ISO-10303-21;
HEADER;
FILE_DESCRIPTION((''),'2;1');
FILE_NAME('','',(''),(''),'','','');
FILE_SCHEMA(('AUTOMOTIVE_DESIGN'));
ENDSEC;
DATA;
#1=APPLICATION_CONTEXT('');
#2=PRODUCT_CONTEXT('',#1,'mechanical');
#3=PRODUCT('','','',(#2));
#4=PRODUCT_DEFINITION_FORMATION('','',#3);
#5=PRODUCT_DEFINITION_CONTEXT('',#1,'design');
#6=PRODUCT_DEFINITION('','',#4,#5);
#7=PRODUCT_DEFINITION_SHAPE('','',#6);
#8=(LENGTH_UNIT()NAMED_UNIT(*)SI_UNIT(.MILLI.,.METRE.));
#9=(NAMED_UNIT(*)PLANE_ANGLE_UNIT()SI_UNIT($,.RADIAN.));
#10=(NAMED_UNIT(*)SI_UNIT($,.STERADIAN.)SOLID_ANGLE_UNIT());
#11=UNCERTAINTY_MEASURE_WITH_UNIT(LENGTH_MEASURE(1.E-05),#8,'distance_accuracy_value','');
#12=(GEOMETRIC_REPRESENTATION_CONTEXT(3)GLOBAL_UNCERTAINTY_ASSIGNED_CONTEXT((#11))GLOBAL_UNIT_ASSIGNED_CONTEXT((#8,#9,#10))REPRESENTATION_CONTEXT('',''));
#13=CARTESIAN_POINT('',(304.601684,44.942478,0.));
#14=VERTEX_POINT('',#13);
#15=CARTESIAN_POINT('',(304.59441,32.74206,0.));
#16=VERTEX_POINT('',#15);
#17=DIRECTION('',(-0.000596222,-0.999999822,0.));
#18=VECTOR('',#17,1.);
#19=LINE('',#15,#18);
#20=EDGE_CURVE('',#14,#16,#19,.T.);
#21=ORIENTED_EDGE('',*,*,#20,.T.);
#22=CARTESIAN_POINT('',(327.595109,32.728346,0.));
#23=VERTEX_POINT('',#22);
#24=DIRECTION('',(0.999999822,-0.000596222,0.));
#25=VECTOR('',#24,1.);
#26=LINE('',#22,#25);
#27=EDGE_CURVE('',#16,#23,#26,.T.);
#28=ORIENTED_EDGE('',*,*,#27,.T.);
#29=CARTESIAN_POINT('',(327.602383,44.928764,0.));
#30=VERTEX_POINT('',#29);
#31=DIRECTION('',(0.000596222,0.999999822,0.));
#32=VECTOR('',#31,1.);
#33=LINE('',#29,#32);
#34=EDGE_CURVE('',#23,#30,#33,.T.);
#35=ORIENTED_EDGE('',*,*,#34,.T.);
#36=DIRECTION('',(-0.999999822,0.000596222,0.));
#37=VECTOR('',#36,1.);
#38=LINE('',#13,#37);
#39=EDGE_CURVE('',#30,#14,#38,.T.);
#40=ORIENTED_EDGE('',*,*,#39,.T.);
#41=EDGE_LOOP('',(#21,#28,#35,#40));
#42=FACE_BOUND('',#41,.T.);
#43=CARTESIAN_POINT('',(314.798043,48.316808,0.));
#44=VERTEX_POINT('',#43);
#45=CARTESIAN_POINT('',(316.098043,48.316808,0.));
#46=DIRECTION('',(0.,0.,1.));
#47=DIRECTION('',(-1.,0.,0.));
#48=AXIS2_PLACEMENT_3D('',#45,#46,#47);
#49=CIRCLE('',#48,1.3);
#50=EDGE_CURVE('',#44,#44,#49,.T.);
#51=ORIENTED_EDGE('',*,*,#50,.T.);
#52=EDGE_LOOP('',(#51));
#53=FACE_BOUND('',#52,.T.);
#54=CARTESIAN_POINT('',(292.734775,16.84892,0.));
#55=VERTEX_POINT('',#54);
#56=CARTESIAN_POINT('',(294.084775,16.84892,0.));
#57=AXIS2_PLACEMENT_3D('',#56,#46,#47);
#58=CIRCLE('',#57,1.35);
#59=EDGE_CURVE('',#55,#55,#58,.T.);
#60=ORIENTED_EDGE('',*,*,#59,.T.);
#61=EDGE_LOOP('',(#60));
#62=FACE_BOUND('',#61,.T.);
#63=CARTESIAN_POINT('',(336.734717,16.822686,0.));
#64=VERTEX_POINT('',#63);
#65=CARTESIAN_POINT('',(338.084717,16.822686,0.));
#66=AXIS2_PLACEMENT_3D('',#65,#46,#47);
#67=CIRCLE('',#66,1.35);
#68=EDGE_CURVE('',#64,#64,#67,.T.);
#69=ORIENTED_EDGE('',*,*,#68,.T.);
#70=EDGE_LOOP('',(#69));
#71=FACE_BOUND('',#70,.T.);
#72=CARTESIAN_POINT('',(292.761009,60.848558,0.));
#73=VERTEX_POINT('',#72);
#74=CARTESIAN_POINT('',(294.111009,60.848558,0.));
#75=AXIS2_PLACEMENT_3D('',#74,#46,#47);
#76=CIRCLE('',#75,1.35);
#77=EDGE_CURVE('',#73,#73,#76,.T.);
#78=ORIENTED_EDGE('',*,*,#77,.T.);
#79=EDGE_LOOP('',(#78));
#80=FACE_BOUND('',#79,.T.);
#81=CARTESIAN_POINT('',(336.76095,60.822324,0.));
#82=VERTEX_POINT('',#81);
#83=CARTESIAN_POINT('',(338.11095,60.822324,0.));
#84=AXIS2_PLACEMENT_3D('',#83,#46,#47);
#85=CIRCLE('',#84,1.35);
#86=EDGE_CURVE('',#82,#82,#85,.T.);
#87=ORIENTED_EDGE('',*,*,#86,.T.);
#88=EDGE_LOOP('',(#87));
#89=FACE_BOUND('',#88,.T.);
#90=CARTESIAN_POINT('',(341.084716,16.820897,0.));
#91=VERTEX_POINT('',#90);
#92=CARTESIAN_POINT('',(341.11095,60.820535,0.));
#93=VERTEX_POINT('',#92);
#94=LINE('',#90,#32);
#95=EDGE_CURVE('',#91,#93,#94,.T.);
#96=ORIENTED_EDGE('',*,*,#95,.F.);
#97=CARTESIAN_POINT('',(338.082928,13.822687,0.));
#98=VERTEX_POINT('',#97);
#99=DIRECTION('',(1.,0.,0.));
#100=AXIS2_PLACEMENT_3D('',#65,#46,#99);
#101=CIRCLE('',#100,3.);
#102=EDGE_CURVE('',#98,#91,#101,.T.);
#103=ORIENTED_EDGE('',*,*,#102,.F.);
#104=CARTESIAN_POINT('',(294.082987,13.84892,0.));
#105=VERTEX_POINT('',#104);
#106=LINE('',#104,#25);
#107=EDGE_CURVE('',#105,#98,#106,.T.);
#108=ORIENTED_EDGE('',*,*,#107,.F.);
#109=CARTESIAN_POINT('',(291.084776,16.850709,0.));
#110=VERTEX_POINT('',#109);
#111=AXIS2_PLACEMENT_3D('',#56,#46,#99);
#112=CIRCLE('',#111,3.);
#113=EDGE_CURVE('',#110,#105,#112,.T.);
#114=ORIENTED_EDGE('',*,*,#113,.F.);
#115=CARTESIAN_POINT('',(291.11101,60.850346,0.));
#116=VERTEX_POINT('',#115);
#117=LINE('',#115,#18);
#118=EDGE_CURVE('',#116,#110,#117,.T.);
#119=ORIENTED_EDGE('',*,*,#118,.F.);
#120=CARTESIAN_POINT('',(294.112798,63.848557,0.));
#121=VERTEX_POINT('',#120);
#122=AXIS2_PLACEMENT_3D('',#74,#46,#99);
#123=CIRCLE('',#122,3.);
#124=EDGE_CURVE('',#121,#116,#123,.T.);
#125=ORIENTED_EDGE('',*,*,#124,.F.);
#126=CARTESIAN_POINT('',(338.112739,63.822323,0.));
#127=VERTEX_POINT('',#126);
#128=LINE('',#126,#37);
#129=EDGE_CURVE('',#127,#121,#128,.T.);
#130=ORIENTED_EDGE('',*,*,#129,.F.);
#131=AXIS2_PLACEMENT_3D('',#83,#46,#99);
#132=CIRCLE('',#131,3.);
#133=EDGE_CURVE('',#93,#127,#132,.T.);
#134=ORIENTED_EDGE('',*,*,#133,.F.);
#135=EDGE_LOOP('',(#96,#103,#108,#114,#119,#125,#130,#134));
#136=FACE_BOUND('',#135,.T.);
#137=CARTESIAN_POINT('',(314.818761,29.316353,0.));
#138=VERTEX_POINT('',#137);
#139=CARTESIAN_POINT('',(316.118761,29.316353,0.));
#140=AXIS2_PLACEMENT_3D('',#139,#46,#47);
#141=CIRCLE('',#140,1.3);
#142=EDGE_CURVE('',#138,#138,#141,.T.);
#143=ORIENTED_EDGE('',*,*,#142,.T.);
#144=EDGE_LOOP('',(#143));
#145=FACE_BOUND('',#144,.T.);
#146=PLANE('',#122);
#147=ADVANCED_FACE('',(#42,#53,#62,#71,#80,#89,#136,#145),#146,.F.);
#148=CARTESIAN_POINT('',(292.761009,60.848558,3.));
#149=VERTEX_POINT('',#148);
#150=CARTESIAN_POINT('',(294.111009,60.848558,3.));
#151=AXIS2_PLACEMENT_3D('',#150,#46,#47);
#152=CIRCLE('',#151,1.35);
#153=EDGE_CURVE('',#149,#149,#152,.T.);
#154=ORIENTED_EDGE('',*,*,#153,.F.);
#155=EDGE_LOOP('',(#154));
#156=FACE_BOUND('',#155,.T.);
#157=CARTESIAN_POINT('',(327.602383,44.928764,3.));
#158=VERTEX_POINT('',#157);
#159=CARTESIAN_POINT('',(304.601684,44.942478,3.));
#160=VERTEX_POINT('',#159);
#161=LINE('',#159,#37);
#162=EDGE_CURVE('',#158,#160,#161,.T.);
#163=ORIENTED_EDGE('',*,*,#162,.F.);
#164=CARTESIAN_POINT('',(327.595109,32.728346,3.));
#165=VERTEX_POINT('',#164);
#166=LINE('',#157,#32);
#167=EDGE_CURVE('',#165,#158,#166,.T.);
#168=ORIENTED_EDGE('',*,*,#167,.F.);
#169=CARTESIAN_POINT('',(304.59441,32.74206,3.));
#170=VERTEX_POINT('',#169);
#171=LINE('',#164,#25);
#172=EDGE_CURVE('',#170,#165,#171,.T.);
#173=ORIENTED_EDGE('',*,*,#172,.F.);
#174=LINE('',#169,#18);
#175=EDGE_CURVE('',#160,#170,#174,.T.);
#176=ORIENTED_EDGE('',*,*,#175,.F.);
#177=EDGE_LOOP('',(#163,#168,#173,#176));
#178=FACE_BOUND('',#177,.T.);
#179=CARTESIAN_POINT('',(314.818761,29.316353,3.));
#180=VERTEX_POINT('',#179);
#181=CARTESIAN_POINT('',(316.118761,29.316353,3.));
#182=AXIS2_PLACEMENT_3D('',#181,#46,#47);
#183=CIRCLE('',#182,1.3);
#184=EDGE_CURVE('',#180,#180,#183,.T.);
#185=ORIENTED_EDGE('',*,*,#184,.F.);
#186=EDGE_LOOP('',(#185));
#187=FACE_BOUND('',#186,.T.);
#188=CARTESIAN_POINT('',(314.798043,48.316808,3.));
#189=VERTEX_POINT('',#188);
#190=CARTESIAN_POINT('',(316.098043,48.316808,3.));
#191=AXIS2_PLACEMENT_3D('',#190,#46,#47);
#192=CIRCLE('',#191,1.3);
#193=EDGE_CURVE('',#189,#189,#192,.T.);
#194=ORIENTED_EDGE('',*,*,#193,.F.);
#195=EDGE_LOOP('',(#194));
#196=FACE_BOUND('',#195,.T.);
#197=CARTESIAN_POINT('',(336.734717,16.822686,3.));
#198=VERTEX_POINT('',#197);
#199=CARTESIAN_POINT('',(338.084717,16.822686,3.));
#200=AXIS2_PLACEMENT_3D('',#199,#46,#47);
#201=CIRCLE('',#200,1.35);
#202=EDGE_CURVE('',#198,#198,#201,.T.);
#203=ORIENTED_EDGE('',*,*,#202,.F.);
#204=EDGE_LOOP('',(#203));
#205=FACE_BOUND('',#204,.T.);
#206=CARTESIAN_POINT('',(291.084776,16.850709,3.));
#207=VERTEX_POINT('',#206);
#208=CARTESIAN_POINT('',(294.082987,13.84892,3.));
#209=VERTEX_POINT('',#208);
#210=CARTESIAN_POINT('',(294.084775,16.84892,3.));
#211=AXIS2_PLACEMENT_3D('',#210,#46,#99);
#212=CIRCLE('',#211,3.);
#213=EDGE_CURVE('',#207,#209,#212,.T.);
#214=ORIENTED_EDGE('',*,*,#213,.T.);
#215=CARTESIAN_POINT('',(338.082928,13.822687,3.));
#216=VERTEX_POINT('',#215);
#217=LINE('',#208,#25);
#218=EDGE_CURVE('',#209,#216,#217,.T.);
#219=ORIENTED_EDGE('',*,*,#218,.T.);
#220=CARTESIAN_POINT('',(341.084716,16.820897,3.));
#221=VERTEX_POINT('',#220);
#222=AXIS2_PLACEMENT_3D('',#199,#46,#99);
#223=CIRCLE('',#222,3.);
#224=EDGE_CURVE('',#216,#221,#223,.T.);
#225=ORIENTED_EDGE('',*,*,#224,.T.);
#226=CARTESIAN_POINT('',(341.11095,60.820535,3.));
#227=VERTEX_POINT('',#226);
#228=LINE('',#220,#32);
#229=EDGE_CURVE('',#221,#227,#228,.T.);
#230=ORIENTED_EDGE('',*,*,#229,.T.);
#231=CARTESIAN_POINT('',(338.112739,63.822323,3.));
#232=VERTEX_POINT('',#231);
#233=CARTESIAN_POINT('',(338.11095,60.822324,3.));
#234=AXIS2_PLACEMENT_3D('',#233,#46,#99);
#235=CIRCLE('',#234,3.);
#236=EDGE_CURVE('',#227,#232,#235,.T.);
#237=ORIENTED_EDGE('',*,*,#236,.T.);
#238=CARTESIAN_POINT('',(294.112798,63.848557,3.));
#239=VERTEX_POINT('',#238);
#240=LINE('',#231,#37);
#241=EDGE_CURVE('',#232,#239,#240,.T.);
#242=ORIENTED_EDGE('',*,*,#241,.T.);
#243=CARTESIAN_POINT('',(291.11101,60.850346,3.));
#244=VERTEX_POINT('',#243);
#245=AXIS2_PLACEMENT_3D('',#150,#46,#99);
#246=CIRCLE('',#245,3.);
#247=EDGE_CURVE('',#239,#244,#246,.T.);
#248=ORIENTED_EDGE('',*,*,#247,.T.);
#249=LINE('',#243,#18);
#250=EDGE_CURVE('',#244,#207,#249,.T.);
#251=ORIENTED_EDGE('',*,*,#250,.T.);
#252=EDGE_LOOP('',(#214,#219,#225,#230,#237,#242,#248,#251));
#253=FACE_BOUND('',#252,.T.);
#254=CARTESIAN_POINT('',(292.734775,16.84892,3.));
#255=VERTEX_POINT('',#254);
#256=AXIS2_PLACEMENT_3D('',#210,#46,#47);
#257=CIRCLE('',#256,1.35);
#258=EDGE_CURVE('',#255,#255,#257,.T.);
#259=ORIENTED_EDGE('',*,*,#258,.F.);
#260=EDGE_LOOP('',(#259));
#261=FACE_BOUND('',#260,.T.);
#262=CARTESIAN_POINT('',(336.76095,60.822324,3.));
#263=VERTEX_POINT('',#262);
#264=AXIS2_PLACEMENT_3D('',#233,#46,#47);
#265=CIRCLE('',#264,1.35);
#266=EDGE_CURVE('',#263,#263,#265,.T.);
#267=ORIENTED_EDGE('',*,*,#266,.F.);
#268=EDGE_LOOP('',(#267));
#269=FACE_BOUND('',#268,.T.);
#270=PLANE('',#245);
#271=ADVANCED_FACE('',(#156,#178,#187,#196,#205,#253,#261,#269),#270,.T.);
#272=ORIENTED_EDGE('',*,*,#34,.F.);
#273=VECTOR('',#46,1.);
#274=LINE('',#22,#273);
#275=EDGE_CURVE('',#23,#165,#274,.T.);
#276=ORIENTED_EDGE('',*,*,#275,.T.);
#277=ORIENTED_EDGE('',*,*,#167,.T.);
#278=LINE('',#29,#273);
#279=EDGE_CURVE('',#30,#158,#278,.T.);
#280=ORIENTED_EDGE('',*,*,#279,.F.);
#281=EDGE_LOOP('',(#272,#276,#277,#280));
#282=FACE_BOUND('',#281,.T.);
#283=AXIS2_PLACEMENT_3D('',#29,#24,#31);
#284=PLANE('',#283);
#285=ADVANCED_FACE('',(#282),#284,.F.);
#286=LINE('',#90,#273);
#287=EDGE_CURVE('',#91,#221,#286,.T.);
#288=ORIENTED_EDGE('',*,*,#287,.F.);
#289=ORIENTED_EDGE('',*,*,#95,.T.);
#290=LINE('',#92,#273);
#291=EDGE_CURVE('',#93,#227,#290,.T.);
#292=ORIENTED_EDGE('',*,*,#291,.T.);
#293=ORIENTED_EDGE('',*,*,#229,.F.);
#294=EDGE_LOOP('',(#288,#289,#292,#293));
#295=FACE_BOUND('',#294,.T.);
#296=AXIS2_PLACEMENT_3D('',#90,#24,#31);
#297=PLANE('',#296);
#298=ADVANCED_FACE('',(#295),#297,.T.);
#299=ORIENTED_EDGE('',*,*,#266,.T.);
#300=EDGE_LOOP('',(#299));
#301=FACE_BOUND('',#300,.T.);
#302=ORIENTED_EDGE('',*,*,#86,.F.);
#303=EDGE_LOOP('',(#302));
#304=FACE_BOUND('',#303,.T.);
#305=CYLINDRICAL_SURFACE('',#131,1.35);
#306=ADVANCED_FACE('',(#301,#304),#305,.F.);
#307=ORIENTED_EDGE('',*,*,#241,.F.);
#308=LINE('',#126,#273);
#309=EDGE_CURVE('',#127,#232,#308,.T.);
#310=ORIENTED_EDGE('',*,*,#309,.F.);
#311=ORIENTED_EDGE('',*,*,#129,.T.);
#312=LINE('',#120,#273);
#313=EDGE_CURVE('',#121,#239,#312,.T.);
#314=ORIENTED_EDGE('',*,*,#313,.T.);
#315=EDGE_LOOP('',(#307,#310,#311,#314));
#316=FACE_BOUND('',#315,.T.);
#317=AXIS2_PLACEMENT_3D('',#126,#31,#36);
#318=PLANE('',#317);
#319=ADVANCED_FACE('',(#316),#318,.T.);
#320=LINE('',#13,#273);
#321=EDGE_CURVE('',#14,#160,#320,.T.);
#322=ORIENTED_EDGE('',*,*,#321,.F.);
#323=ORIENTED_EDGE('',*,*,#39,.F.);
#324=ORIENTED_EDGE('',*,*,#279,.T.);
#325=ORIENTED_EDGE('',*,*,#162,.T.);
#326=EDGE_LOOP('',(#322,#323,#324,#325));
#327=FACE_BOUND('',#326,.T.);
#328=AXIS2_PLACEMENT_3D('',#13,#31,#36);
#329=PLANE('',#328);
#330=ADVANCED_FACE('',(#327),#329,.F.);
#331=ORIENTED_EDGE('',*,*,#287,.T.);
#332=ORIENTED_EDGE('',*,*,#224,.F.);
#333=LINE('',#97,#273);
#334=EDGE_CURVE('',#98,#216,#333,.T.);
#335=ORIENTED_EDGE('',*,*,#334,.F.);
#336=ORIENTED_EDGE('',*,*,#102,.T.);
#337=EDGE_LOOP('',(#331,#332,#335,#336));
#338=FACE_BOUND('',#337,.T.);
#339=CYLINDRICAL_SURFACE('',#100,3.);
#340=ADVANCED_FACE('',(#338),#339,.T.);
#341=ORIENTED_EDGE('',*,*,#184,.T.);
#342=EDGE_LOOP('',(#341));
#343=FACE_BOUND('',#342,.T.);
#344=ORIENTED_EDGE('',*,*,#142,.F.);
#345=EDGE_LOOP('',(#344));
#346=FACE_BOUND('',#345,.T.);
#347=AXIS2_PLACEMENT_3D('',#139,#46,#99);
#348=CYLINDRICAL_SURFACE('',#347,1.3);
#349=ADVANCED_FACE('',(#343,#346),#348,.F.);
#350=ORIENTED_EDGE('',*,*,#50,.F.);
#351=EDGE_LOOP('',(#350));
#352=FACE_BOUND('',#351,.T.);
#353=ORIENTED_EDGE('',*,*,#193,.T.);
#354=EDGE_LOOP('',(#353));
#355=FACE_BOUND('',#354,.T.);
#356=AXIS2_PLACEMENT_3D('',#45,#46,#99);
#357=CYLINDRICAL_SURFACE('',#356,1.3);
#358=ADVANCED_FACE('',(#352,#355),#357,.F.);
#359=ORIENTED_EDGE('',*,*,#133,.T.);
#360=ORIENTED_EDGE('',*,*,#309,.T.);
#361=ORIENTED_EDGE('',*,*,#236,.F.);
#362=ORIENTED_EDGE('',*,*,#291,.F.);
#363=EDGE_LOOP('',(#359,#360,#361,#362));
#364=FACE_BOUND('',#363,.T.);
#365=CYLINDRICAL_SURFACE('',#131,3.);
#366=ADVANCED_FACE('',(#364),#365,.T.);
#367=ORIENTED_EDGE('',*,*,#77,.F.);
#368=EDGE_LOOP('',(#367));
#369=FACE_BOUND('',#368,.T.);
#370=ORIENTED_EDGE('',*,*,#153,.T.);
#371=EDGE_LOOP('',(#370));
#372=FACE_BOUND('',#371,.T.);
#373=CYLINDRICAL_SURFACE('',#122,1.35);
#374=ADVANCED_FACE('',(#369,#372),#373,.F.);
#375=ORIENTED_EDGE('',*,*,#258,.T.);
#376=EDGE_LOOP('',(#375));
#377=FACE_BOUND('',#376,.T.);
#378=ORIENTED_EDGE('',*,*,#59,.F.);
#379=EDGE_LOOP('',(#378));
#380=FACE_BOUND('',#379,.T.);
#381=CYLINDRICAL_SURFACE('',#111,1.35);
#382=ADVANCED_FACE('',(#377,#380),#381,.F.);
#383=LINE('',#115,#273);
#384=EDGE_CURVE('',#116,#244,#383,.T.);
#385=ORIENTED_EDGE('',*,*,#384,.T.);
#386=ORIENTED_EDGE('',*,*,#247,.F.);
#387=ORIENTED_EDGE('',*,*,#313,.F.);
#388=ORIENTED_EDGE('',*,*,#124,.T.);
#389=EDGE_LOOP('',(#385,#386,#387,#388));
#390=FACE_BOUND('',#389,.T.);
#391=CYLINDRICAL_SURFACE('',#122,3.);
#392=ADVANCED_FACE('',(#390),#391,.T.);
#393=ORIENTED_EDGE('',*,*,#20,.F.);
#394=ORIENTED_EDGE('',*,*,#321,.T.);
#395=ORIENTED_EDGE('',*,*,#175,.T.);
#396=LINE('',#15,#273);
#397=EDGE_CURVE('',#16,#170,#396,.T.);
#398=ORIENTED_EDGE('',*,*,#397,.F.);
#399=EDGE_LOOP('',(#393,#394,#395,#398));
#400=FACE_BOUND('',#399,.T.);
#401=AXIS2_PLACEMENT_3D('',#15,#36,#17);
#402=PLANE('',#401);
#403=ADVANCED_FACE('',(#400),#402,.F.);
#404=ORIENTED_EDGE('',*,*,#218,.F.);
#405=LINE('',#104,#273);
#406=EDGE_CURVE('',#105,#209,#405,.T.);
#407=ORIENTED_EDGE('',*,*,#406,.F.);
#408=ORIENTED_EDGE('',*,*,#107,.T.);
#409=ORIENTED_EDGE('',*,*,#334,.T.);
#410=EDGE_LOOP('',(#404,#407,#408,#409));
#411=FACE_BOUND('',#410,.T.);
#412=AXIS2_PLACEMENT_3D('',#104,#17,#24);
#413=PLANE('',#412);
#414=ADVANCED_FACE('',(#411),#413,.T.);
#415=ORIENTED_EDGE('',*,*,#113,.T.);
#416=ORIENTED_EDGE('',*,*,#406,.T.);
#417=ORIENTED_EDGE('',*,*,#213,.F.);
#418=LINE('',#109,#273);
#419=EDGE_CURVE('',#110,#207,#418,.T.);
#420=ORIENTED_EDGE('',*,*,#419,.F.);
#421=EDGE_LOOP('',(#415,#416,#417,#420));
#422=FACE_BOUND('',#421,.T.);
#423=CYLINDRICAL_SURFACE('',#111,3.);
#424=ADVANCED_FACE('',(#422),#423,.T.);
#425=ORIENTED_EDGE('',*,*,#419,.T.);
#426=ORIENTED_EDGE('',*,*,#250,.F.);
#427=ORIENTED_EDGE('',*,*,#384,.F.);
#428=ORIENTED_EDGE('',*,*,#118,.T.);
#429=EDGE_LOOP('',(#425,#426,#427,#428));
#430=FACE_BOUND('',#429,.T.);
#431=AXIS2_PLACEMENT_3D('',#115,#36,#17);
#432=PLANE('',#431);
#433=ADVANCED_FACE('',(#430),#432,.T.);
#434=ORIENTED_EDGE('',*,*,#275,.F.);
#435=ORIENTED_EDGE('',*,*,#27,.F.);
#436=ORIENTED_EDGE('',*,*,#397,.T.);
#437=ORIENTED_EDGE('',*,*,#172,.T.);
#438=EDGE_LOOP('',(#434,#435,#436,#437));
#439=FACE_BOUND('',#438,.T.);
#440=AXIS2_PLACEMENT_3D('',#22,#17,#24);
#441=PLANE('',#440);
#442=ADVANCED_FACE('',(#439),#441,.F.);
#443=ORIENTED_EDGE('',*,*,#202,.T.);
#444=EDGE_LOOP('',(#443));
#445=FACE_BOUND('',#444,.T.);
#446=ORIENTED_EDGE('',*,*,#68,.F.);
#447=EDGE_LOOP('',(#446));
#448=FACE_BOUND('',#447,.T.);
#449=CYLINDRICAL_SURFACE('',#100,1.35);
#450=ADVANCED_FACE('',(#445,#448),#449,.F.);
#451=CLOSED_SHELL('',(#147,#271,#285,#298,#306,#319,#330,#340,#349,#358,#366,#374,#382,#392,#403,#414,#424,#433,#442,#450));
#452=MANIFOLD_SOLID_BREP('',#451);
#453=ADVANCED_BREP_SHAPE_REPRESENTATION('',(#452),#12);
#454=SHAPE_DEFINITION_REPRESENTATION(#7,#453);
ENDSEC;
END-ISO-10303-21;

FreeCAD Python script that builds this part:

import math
import FreeCAD as App
import Part
import Sketcher

doc = App.newDocument("Part")
body = doc.addObject("PartDesign::Body", "Body")

# Sketch on XY plane
sketch1 = doc.addObject("Sketcher::SketchObject", "Sketch")
body.addObject(sketch1)
sketch1.AttachmentSupport = (doc.XY_Plane, [""])
sketch1.MapMode = "FlatFace"
sketch1.AttachmentOffset = App.Placement(App.Vector(0, 0, 3), App.Rotation())
sketch1.addGeometry([
    Part.LineSegment(App.Vector(291.11101, 60.850346, 0), App.Vector(291.084776, 16.850709, 0)),  # 0
    Part.ArcOfCircle(Part.Circle(App.Vector(294.084775, 16.84892, 0), App.Vector(0, 0, 1), 3), math.radians(179.965839), math.radians(269.965839)),  # 1
    Part.LineSegment(App.Vector(294.082987, 13.84892, 0), App.Vector(338.082928, 13.822687, 0)),  # 2
    Part.ArcOfCircle(Part.Circle(App.Vector(338.084717, 16.822686, 0), App.Vector(0, 0, 1), 3), math.radians(-90.034161), math.radians(-0.034161)),  # 3
    Part.LineSegment(App.Vector(341.084716, 16.820897, 0), App.Vector(341.11095, 60.820535, 0)),  # 4
    Part.ArcOfCircle(Part.Circle(App.Vector(338.11095, 60.822324, 0), App.Vector(0, 0, 1), 3), math.radians(-0.034161), math.radians(89.965839)),  # 5
    Part.LineSegment(App.Vector(338.112739, 63.822323, 0), App.Vector(294.112798, 63.848557, 0)),  # 6
    Part.ArcOfCircle(Part.Circle(App.Vector(294.111009, 60.848558, 0), App.Vector(0, 0, 1), 3), math.radians(89.965839), math.radians(179.965839)),  # 7
    Part.Circle(App.Vector(294.084775, 16.84892, 0), App.Vector(0, 0, 1), 1.35),  # 8
    Part.Circle(App.Vector(338.084717, 16.822686, 0), App.Vector(0, 0, 1), 1.35),  # 9
    Part.Circle(App.Vector(316.118761, 29.316353, 0), App.Vector(0, 0, 1), 1.3),  # 10
    Part.LineSegment(App.Vector(304.59441, 32.74206, 0), App.Vector(304.601684, 44.942478, 0)),  # 11
    Part.LineSegment(App.Vector(304.601684, 44.942478, 0), App.Vector(327.602383, 44.928764, 0)),  # 12
    Part.LineSegment(App.Vector(327.602383, 44.928764, 0), App.Vector(327.595109, 32.728346, 0)),  # 13
    Part.LineSegment(App.Vector(327.595109, 32.728346, 0), App.Vector(304.59441, 32.74206, 0)),  # 14
    Part.Circle(App.Vector(294.111009, 60.848558, 0), App.Vector(0, 0, 1), 1.35),  # 15
    Part.Circle(App.Vector(316.098043, 48.316808, 0), App.Vector(0, 0, 1), 1.3),  # 16
    Part.Circle(App.Vector(338.11095, 60.822324, 0), App.Vector(0, 0, 1), 1.35),  # 17
], False)
sketch1.addConstraint([
    Sketcher.Constraint("Tangent", 0, 2, 1, 1),
    Sketcher.Constraint("Tangent", 1, 2, 2, 1),
    Sketcher.Constraint("Tangent", 2, 2, 3, 1),
    Sketcher.Constraint("Tangent", 3, 2, 4, 1),
    Sketcher.Constraint("Tangent", 4, 2, 5, 1),
    Sketcher.Constraint("Tangent", 5, 2, 6, 1),
    Sketcher.Constraint("Tangent", 6, 2, 7, 1),
    Sketcher.Constraint("Tangent", 7, 2, 0, 1),
    Sketcher.Constraint("Coincident", 11, 2, 12, 1),
    Sketcher.Constraint("Coincident", 12, 2, 13, 1),
    Sketcher.Constraint("Coincident", 13, 2, 14, 1),
    Sketcher.Constraint("Coincident", 14, 2, 11, 1),
    Sketcher.Constraint("Coincident", 8, 3, 1, 3),
    Sketcher.Constraint("Coincident", 9, 3, 3, 3),
    Sketcher.Constraint("Coincident", 15, 3, 7, 3),
    Sketcher.Constraint("Coincident", 17, 3, 5, 3),
    Sketcher.Constraint("Equal", 1, 3),
    Sketcher.Constraint("Equal", 3, 5),
    Sketcher.Constraint("Equal", 5, 7),
    Sketcher.Constraint("Equal", 8, 9),
    Sketcher.Constraint("Equal", 9, 15),
    Sketcher.Constraint("Equal", 10, 16),
    Sketcher.Constraint("Equal", 15, 17),
    Sketcher.Constraint("Perpendicular", 0, 2),
    Sketcher.Constraint("Perpendicular", 2, 4),
    Sketcher.Constraint("Perpendicular", 4, 6),
    Sketcher.Constraint("Perpendicular", 6, 11),
    Sketcher.Constraint("Perpendicular", 11, 12),
    Sketcher.Constraint("Perpendicular", 12, 13),
    Sketcher.Constraint("Perpendicular", 13, 14),
    Sketcher.Constraint("Radius", 1, 3.0),
    Sketcher.Constraint("Diameter", 8, 2.7),
    Sketcher.Constraint("Diameter", 10, 2.6),
    Sketcher.Constraint("DistanceY", 0, 2, 16, 3, 31.466099),
    Sketcher.Constraint("Distance", 2, 43.999949),
    Sketcher.Constraint("Distance", 11, 12.20042),
    Sketcher.Constraint("DistanceY", -1, 1, 1, 3, 16.84892),
    Sketcher.Constraint("DistanceX", -1, 1, 5, 3, 338.11095),
    Sketcher.Constraint("DistanceX", -1, 1, 10, 3, 316.118761),
    Sketcher.Constraint("DistanceY", -1, 1, 0, 2, 16.850709),
    Sketcher.Constraint("DistanceX", -1, 1, 13, 2, 327.595109),
    Sketcher.Constraint("DistanceX", -1, 1, 14, 2, 304.59441),
    Sketcher.Constraint("DistanceY", -1, 1, 14, 2, 32.74206),
    Sketcher.Constraint("DistanceY", 3, 3, 7, 3, 44.025871),
    Sketcher.Constraint("DistanceY", 10, 3, 5, 3, 31.50597),
    Sketcher.Constraint("DistanceX", 16, 3, 10, 3, 0.020718),
])
pad1 = doc.addObject("PartDesign::Pad", "Pad")
body.addObject(pad1)
pad1.Profile = sketch1
pad1.Length = 3
pad1.Reversed = True

doc.recompute()
